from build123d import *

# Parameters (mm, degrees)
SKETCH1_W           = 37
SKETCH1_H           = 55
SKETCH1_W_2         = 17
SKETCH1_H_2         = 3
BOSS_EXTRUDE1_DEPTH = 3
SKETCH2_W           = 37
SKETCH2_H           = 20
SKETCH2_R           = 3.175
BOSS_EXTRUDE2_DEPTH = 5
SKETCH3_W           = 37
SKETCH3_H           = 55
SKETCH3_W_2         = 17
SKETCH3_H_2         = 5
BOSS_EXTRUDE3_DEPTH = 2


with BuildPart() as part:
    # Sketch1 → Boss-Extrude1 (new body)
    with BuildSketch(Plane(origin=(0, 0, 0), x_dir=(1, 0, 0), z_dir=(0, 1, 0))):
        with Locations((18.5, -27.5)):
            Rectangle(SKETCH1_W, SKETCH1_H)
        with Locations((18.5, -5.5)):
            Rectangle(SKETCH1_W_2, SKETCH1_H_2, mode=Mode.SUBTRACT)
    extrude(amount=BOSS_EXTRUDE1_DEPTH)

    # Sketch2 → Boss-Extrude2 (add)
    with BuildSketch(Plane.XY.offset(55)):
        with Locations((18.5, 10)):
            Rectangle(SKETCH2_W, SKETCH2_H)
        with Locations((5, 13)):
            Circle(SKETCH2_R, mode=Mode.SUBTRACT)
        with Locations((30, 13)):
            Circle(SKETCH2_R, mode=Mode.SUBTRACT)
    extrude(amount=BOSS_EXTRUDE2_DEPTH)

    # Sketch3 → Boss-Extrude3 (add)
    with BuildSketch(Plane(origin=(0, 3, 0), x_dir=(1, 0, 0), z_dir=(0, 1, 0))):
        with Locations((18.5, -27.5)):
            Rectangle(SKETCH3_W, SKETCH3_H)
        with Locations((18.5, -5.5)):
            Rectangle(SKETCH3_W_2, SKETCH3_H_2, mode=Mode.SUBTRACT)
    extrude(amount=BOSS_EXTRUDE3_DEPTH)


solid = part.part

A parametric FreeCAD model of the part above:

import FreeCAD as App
import Part
import Sketcher
from FreeCAD import Vector


def add_polygon(sketch, points):
    """Adds a closed chain of lines whose ends are joined by coincident constraints."""
    first, n = sketch.GeometryCount, len(points)
    for a, b in zip(points, points[1:] + points[:1]):
        sketch.addGeometry(Part.LineSegment(App.Vector(*a, 0), App.Vector(*b, 0)), False)
    for i in range(n):
        sketch.addConstraint(Sketcher.Constraint("Coincident", first + i, 2, first + (i + 1) % n, 1))

doc = App.newDocument("Part")
params = doc.addObject("Spreadsheet::Sheet", "Params")
for row, (alias, value) in enumerate([
    ("sketch1_width", "37 mm"),
    ("sketch1_width2", "17 mm"),
    ("sketch1_height", "55 mm"),
    ("sketch1_height2", "3 mm"),
    ("pad1_length", "3 mm"),
    ("sketch2_diameter", "6.35 mm"),
    ("sketch2_width", "37 mm"),
    ("sketch2_height", "20 mm"),
    ("pad2_length", "5 mm"),
    ("sketch3_width", "37 mm"),
    ("sketch3_width2", "17 mm"),
    ("sketch3_height", "55 mm"),
    ("sketch3_height2", "5 mm"),
    ("pad3_length", "2 mm"),
], start=1):
    params.set(f"A{row}", alias)
    params.set(f"B{row}", "=" + value)
    params.setAlias(f"B{row}", alias)

body = doc.addObject("PartDesign::Body", "Body")

sketch1 = body.newObject("Sketcher::SketchObject", "Sketch")
sketch1.AttachmentSupport = (doc.getObject("XZ_Plane"), [""])
sketch1.MapMode = "FlatFace"
add_polygon(sketch1, [(0, 0), (0, 55), (37, 55), (37, 0)])
add_polygon(sketch1, [(27, 7), (10, 7), (10, 4), (27, 4)])
sketch1.addConstraint(Sketcher.Constraint("Vertical", 0))
sketch1.addConstraint(Sketcher.Constraint("Horizontal", 1))
sketch1.addConstraint(Sketcher.Constraint("Vertical", 2))
sketch1.addConstraint(Sketcher.Constraint("Horizontal", 3))
sketch1.addConstraint(Sketcher.Constraint("Horizontal", 4))
sketch1.addConstraint(Sketcher.Constraint("Vertical", 5))
sketch1.addConstraint(Sketcher.Constraint("Horizontal", 6))
sketch1.addConstraint(Sketcher.Constraint("Vertical", 7))
sketch1.addConstraint(Sketcher.Constraint("Coincident", 3, 2, -1, 1))
sketch1.addConstraint(Sketcher.Constraint("DistanceX", 1, 1, 1, 2, 37.0))
sketch1.addConstraint(Sketcher.Constraint("DistanceX", 4, 2, 4, 1, 17.0))
sketch1.addConstraint(Sketcher.Constraint("DistanceY", 0, 1, 0, 2, 55.0))
sketch1.addConstraint(Sketcher.Constraint("DistanceY", 5, 2, 5, 1, 3.0))
sketch1.addConstraint(Sketcher.Constraint("DistanceX", -1, 1, 4, 2, 10.0))
sketch1.addConstraint(Sketcher.Constraint("DistanceY", -1, 1, 4, 2, 7.0))
sketch1.setExpression("Constraints[17]", "Params.sketch1_width")
sketch1.setExpression("Constraints[18]", "Params.sketch1_width2")
sketch1.setExpression("Constraints[19]", "Params.sketch1_height")
sketch1.setExpression("Constraints[20]", "Params.sketch1_height2")
pad1 = body.newObject("PartDesign::Pad", "Pad")
pad1.Profile = sketch1
pad1.setExpression("Length", "Params.pad1_length")
pad1.Reversed = True

sketch2 = body.newObject("Sketcher::SketchObject", "Sketch001")
sketch2.AttachmentSupport = (doc.getObject("XY_Plane"), [""])
sketch2.MapMode = "FlatFace"
sketch2.AttachmentOffset = App.Placement(Vector(0, 0, 55), App.Rotation())
add_polygon(sketch2, [(0, 20), (0, 0), (37, 0), (37, 20)])
sketch2.addGeometry(Part.Circle(Vector(5, 13, 0), Vector(0, 0, 1), 3.2), False)
sketch2.addGeometry(Part.Circle(Vector(30, 13, 0), Vector(0, 0, 1), 3.2), False)
sketch2.addConstraint(Sketcher.Constraint("Vertical", 0))
sketch2.addConstraint(Sketcher.Constraint("Horizontal", 1))
sketch2.addConstraint(Sketcher.Constraint("Vertical", 2))
sketch2.addConstraint(Sketcher.Constraint("Horizontal", 3))
sketch2.addConstraint(Sketcher.Constraint("Coincident", 0, 2, -1, 1))
sketch2.addConstraint(Sketcher.Constraint("Equal", 4, 5))
sketch2.addConstraint(Sketcher.Constraint("Horizontal", 4, 3, 5, 3))
sketch2.addConstraint(Sketcher.Constraint("Diameter", 4, 6.35))
sketch2.addConstraint(Sketcher.Constraint("DistanceX", 1, 1, 1, 2, 37.0))
sketch2.addConstraint(Sketcher.Constraint("DistanceY", 0, 2, 0, 1, 20.0))
sketch2.addConstraint(Sketcher.Constraint("DistanceX", -1, 1, 4, 3, 5.0))
sketch2.addConstraint(Sketcher.Constraint("DistanceY", -1, 1, 4, 3, 13.0))
sketch2.addConstraint(Sketcher.Constraint("DistanceX", -1, 1, 5, 3, 30.0))
sketch2.setExpression("Constraints[11]", "Params.sketch2_diameter")
sketch2.setExpression("Constraints[12]", "Params.sketch2_width")
sketch2.setExpression("Constraints[13]", "Params.sketch2_height")
pad2 = body.newObject("PartDesign::Pad", "Pad001")
pad2.Profile = sketch2
pad2.setExpression("Length", "Params.pad2_length")

sketch3 = body.newObject("Sketcher::SketchObject", "Sketch002")
sketch3.AttachmentSupport = (doc.getObject("XZ_Plane"), [""])
sketch3.MapMode = "FlatFace"
sketch3.AttachmentOffset = App.Placement(Vector(0, 0, -3), App.Rotation())
add_polygon(sketch3, [(0, 0), (0, 55), (37, 55), (37, 0)])
add_polygon(sketch3, [(27, 8), (10, 8), (10, 3), (27, 3)])
sketch3.addConstraint(Sketcher.Constraint("Vertical", 0))
sketch3.addConstraint(Sketcher.Constraint("Horizontal", 1))
sketch3.addConstraint(Sketcher.Constraint("Vertical", 2))
sketch3.addConstraint(Sketcher.Constraint("Horizontal", 3))
sketch3.addConstraint(Sketcher.Constraint("Horizontal", 4))
sketch3.addConstraint(Sketcher.Constraint("Vertical", 5))
sketch3.addConstraint(Sketcher.Constraint("Horizontal", 6))
sketch3.addConstraint(Sketcher.Constraint("Vertical", 7))
sketch3.addConstraint(Sketcher.Constraint("Coincident", 3, 2, -1, 1))
sketch3.addConstraint(Sketcher.Constraint("DistanceX", 1, 1, 1, 2, 37.0))
sketch3.addConstraint(Sketcher.Constraint("DistanceX", 4, 2, 4, 1, 17.0))
sketch3.addConstraint(Sketcher.Constraint("DistanceY", 0, 1, 0, 2, 55.0))
sketch3.addConstraint(Sketcher.Constraint("DistanceY", 5, 2, 5, 1, 5.0))
sketch3.addConstraint(Sketcher.Constraint("DistanceX", -1, 1, 4, 2, 10.0))
sketch3.addConstraint(Sketcher.Constraint("DistanceY", -1, 1, 4, 2, 8.0))
sketch3.setExpression("Constraints[17]", "Params.sketch3_width")
sketch3.setExpression("Constraints[18]", "Params.sketch3_width2")
sketch3.setExpression("Constraints[19]", "Params.sketch3_height")
sketch3.setExpression("Constraints[20]", "Params.sketch3_height2")
pad3 = body.newObject("PartDesign::Pad", "Pad002")
pad3.Profile = sketch3
pad3.setExpression("Length", "Params.pad3_length")
pad3.Reversed = True

doc.recompute()
